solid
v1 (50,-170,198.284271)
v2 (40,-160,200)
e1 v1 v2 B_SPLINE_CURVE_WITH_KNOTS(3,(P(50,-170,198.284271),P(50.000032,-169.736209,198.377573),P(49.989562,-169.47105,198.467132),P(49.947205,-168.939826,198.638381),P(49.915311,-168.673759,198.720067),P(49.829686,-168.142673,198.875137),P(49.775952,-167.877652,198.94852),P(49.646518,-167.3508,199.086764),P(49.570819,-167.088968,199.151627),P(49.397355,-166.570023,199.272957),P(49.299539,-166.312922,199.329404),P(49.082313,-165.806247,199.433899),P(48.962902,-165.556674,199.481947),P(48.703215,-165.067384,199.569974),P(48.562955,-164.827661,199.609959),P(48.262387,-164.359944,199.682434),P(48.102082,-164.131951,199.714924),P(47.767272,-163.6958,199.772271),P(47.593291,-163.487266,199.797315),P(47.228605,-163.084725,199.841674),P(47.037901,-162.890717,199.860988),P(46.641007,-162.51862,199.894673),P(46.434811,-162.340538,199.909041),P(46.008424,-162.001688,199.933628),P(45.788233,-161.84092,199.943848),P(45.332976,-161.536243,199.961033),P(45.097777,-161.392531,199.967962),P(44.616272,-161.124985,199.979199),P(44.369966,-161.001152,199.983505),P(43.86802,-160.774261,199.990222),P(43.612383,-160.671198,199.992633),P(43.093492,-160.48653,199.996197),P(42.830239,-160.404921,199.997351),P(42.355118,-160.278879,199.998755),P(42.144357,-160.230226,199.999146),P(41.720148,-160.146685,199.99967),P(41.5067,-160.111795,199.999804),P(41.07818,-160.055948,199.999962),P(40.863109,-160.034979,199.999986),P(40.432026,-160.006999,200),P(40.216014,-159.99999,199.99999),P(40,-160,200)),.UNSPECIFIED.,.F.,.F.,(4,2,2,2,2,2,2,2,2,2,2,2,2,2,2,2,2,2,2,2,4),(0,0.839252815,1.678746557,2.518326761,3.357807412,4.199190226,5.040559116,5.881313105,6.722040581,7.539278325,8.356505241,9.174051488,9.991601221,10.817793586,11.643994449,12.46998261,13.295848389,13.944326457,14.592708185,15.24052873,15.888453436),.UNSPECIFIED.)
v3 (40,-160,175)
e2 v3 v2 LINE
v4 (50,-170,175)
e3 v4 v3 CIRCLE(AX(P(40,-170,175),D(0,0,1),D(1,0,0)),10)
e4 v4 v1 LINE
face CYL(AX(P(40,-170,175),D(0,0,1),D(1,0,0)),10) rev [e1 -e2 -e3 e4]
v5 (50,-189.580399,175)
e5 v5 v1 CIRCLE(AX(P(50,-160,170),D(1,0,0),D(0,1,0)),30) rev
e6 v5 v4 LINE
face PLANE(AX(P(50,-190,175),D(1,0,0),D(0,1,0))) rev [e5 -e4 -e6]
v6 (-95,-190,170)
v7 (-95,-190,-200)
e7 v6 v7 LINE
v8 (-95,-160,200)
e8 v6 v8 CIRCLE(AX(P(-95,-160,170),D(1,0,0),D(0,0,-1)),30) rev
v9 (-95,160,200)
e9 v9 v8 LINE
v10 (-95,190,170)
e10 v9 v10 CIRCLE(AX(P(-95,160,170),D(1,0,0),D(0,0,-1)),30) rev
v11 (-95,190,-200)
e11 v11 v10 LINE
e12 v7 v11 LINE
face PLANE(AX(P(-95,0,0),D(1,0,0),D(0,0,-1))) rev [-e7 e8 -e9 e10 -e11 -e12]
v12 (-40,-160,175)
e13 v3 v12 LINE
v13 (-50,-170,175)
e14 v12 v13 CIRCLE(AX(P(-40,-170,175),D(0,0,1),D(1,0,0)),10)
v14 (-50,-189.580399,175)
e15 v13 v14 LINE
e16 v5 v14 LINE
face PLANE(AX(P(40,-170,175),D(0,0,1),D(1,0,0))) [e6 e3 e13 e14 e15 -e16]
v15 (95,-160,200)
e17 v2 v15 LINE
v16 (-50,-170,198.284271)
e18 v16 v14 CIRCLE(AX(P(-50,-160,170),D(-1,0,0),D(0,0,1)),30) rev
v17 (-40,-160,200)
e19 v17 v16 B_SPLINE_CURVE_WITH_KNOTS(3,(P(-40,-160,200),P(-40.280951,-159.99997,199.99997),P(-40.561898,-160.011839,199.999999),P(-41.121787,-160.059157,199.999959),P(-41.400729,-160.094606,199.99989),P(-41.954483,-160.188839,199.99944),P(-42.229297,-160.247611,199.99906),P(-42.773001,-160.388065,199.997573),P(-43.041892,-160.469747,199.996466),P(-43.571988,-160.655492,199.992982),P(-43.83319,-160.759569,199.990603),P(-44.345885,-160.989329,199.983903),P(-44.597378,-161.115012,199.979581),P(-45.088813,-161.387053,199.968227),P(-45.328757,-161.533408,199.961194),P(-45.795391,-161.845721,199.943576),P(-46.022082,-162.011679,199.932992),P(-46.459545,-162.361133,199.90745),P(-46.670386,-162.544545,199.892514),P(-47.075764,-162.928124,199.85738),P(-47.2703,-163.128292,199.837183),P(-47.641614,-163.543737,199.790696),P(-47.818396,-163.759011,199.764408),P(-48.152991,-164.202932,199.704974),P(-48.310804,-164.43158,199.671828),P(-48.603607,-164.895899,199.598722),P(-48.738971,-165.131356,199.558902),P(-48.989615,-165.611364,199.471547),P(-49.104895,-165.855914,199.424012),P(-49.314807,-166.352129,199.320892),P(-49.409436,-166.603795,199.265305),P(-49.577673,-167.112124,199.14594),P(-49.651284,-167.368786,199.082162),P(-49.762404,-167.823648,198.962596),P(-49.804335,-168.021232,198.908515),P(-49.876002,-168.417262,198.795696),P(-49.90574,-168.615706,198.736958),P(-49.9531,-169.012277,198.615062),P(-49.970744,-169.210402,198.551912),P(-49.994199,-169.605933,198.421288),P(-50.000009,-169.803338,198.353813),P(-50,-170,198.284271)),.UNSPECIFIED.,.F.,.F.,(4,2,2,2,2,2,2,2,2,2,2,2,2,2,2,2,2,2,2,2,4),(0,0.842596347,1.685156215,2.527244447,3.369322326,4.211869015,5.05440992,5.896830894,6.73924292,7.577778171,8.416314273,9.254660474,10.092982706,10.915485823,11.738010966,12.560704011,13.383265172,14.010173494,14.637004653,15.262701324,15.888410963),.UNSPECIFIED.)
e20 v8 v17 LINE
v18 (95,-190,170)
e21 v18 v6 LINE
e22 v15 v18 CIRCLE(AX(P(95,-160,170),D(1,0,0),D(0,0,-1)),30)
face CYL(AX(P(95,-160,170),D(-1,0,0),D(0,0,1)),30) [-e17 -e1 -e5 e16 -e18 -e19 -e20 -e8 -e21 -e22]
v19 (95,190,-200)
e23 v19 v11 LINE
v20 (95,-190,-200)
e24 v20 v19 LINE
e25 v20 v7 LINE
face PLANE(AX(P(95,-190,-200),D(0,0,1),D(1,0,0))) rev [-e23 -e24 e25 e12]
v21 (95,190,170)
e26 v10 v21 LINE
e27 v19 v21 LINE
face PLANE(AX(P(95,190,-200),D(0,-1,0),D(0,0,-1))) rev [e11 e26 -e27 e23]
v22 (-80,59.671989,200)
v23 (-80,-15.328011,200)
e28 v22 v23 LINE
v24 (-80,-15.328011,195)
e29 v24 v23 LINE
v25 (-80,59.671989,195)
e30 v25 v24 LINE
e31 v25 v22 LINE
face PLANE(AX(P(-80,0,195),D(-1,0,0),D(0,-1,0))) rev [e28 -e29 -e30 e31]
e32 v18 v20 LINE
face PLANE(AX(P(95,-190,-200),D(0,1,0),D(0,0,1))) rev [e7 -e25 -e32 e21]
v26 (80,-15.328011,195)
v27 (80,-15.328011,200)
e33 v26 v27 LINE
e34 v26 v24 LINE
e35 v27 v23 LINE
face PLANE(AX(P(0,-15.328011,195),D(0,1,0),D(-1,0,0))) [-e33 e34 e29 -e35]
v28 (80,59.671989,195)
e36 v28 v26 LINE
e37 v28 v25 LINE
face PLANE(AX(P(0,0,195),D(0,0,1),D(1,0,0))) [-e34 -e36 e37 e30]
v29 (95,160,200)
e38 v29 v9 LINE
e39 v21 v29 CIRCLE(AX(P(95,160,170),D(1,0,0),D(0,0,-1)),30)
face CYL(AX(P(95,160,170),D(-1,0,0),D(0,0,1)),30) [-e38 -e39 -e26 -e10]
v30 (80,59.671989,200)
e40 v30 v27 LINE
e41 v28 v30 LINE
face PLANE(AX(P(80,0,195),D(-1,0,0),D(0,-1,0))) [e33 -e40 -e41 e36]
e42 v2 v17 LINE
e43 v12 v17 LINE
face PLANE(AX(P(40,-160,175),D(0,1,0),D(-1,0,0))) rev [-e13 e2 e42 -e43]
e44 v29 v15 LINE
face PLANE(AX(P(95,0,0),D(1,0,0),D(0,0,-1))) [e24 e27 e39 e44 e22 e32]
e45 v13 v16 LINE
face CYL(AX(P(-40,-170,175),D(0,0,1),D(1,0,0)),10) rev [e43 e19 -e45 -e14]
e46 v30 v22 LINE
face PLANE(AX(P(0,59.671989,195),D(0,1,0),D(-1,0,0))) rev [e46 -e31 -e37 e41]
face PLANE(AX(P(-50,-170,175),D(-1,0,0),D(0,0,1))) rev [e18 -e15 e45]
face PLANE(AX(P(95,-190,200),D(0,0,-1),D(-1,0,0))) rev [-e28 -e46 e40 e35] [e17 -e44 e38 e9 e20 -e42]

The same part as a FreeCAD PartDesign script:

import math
import FreeCAD as App
import Part
import Sketcher

V = App.Vector


def edges_at(feature, points):
    """Names of the edges that pass closest to the given points."""
    edges = feature.Shape.Edges
    near = lambda p: min(range(len(edges)), key=lambda i: edges[i].distToShape(Part.Vertex(*p))[0])
    return sorted({f"Edge{near(p) + 1}" for p in points})

doc = App.newDocument("Part")
body = doc.addObject("PartDesign::Body", "Body")

# Sketch on YZ plane
sketch1 = body.newObject("Sketcher::SketchObject", "Sketch")
sketch1.AttachmentSupport = (doc.getObject("YZ_Plane"), [""])
sketch1.MapMode = "FlatFace"
sketch1.addGeometry(Part.LineSegment(V(190, 200, 0), V(-190, 200, 0)), False)
sketch1.addGeometry(Part.LineSegment(V(-190, 200, 0), V(-190, -200, 0)), False)
sketch1.addGeometry(Part.LineSegment(V(-190, -200, 0), V(190, -200, 0)), False)
sketch1.addGeometry(Part.LineSegment(V(190, -200, 0), V(190, 200, 0)), False)
sketch1.addConstraint(Sketcher.Constraint("Coincident", 0, 2, 1, 1))
sketch1.addConstraint(Sketcher.Constraint("Coincident", 1, 2, 2, 1))
sketch1.addConstraint(Sketcher.Constraint("Coincident", 2, 2, 3, 1))
sketch1.addConstraint(Sketcher.Constraint("Coincident", 3, 2, 0, 1))
sketch1.addConstraint(Sketcher.Constraint("Horizontal", 0))
sketch1.addConstraint(Sketcher.Constraint("Vertical", 1))
sketch1.addConstraint(Sketcher.Constraint("Horizontal", 2))
sketch1.addConstraint(Sketcher.Constraint("Vertical", 3))
sketch1.addConstraint(Sketcher.Constraint("Symmetric", 0, 2, 2, 2, -1, 1))
sketch1.addConstraint(Sketcher.Constraint("DistanceX", 0, 2, 0, 1, 380.0))
sketch1.addConstraint(Sketcher.Constraint("DistanceY", 1, 2, 1, 1, 400.0))
pad1 = body.newObject("PartDesign::Pad", "Pad")
pad1.Profile = sketch1
pad1.Length = 190
pad1.Midplane = True
doc.recompute()

fillet = body.newObject("PartDesign::Fillet", "Fillet")
fillet.Base = (pad1, edges_at(pad1, [(0, 190, 200), (0, -190, 200)]))
fillet.Radius = 30

# Sketch on XY plane
sketch2 = body.newObject("Sketcher::SketchObject", "Sketch001")
sketch2.AttachmentSupport = (doc.getObject("XY_Plane"), [""])
sketch2.MapMode = "FlatFace"
sketch2.AttachmentOffset = App.Placement(V(0, 0, 200), App.Rotation())
sketch2.addGeometry(Part.LineSegment(V(-80, 60, 0), V(-80, -15, 0)), False)
sketch2.addGeometry(Part.LineSegment(V(-80, -15, 0), V(80, -15, 0)), False)
sketch2.addGeometry(Part.LineSegment(V(80, -15, 0), V(80, 60, 0)), False)
sketch2.addGeometry(Part.LineSegment(V(80, 60, 0), V(-80, 60, 0)), False)
sketch2.addConstraint(Sketcher.Constraint("Coincident", 0, 2, 1, 1))
sketch2.addConstraint(Sketcher.Constraint("Coincident", 1, 2, 2, 1))
sketch2.addConstraint(Sketcher.Constraint("Coincident", 2, 2, 3, 1))
sketch2.addConstraint(Sketcher.Constraint("Coincident", 3, 2, 0, 1))
sketch2.addConstraint(Sketcher.Constraint("Vertical", 0))
sketch2.addConstraint(Sketcher.Constraint("Horizontal", 1))
sketch2.addConstraint(Sketcher.Constraint("Vertical", 2))
sketch2.addConstraint(Sketcher.Constraint("Horizontal", 3))
sketch2.addConstraint(Sketcher.Constraint("DistanceX", 1, 1, 1, 2, 160.0))
sketch2.addConstraint(Sketcher.Constraint("DistanceY", 0, 2, 0, 1, 75.0))
sketch2.addConstraint(Sketcher.Constraint("DistanceX", 0, 2, -1, 1, 80.0))
sketch2.addConstraint(Sketcher.Constraint("DistanceY", 0, 2, -1, 1, 15.328011))
pocket1 = body.newObject("PartDesign::Pocket", "Pocket")
pocket1.Profile = sketch2
pocket1.Length = 5

# Sketch on XY plane
sketch3 = body.newObject("Sketcher::SketchObject", "Sketch002")
sketch3.AttachmentSupport = (doc.getObject("XY_Plane"), [""])
sketch3.MapMode = "FlatFace"
sketch3.AttachmentOffset = App.Placement(V(0, 0, 200), App.Rotation())
sketch3.addGeometry(Part.LineSegment(V(40, -160, 0), V(-40, -160, 0)), False)
sketch3.addGeometry(Part.ArcOfCircle(Part.Circle(V(-40, -170, 0), V(0, 0, 1), 10), math.radians(90), math.radians(180)), False)
sketch3.addGeometry(Part.LineSegment(V(-50, -170, 0), V(-50, -190, 0)), False)
sketch3.addGeometry(Part.LineSegment(V(-50, -190, 0), V(50, -190, 0)), False)
sketch3.addGeometry(Part.LineSegment(V(50, -190, 0), V(50, -170, 0)), False)
sketch3.addGeometry(Part.ArcOfCircle(Part.Circle(V(40, -170, 0), V(0, 0, 1), 10), math.radians(0), math.radians(90)), False)
sketch3.addConstraint(Sketcher.Constraint("Tangent", 0, 2, 1, 1))
sketch3.addConstraint(Sketcher.Constraint("Tangent", 1, 2, 2, 1))
sketch3.addConstraint(Sketcher.Constraint("Coincident", 2, 2, 3, 1))
sketch3.addConstraint(Sketcher.Constraint("Coincident", 3, 2, 4, 1))
sketch3.addConstraint(Sketcher.Constraint("Tangent", 4, 2, 5, 1))
sketch3.addConstraint(Sketcher.Constraint("Tangent", 5, 2, 0, 1))
sketch3.addConstraint(Sketcher.Constraint("Horizontal", 0))
sketch3.addConstraint(Sketcher.Constraint("Vertical", 2))
sketch3.addConstraint(Sketcher.Constraint("Horizontal", 3))
sketch3.addConstraint(Sketcher.Constraint("Vertical", 4))
sketch3.addConstraint(Sketcher.Constraint("Equal", 1, 5))
sketch3.addConstraint(Sketcher.Constraint("Radius", 1, 10.0))
sketch3.addConstraint(Sketcher.Constraint("DistanceX", 0, 2, 0, 1, 80.0))
sketch3.addConstraint(Sketcher.Constraint("DistanceY", 2, 2, 2, 1, 20.0))
sketch3.addConstraint(Sketcher.Constraint("DistanceX", 1, 3, -1, 1, 40.0))
sketch3.addConstraint(Sketcher.Constraint("DistanceY", 1, 3, -1, 1, 170.0))
pocket2 = body.newObject("PartDesign::Pocket", "Pocket001")
pocket2.Profile = sketch3
pocket2.Length = 25

doc.recompute()
